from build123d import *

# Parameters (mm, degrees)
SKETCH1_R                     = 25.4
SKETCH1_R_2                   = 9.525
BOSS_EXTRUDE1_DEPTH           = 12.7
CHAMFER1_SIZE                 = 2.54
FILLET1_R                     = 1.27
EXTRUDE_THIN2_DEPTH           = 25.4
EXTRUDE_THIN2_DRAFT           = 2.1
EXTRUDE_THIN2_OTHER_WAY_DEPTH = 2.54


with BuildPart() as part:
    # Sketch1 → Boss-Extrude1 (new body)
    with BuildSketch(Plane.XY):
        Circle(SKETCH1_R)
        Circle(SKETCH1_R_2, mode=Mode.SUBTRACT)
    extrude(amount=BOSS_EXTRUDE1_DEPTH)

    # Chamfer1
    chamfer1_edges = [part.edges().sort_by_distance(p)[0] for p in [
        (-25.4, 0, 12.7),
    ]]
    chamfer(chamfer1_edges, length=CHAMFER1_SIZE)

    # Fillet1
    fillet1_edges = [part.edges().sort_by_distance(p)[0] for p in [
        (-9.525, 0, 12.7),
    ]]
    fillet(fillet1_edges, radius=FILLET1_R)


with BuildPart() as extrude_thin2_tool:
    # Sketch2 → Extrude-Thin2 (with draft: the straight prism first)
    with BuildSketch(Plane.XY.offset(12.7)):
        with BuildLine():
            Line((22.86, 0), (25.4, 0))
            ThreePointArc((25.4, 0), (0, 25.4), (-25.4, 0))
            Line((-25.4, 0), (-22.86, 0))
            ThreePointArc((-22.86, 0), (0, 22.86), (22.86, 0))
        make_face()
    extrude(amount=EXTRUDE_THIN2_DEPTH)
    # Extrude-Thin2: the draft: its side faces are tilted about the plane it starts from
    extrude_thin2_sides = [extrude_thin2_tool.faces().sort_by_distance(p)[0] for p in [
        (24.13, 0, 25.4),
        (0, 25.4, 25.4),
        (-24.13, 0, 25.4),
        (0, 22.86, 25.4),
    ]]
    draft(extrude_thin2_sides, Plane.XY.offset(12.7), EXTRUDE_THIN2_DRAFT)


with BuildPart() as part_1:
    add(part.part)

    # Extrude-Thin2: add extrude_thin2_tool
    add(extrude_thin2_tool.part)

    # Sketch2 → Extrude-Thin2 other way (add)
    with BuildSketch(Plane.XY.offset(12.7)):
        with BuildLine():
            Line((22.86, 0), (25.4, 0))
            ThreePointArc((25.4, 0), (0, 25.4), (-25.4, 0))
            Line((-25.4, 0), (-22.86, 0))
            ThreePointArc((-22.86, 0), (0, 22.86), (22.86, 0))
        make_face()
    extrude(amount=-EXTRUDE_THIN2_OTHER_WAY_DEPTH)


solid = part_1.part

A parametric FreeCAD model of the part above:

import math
import FreeCAD as App
import Part
import Sketcher
from FreeCAD import Vector
Q = App.Units.Quantity


def edges_at(feature, points):
    """Names of the edges that pass closest to the given points."""
    edges = feature.Shape.Edges
    near = lambda p: min(range(len(edges)), key=lambda i: edges[i].distToShape(Part.Vertex(*p))[0])
    return sorted({f"Edge{near(p) + 1}" for p in points})


def faces_at(feature, points):
    """Names of the faces that lie closest to the given points."""
    faces = feature.Shape.Faces
    near = lambda p: min(range(len(faces)), key=lambda i: faces[i].distToShape(Part.Vertex(*p))[0])
    return sorted({f"Face{near(p) + 1}" for p in points})

doc = App.newDocument("Part")
params = doc.addObject("Spreadsheet::Sheet", "Params")
for row, (alias, value) in enumerate([
    ("sketch1_diameter", "2 in"),
    ("sketch1_diameter2", "0.75 in"),
    ("pad1_length", "0.5 in"),
    ("chamfer_size", "0.1 in"),
    ("fillet_radius", "0.05 in"),
    ("sketch2_radius", "1 in"),
    ("sketch2_radius2", "0.9 in"),
    ("pad2_length", "1 in"),
    ("draft_angle", "2.1 deg"),
    ("sketch3_radius", "1 in"),
    ("sketch3_radius2", "0.9 in"),
    ("pad3_length", "0.1 in"),
], start=1):
    params.set(f"A{row}", alias)
    params.set(f"B{row}", "=" + value)
    params.setAlias(f"B{row}", alias)

body = doc.addObject("PartDesign::Body", "Body")

# Sketch on XY plane
sketch1 = doc.addObject("Sketcher::SketchObject", "Sketch")
body.addObject(sketch1)
sketch1.AttachmentSupport = (doc.XY_Plane, [""])
sketch1.MapMode = "FlatFace"
sketch1.addGeometry(Part.Circle(Vector(0, 0, 0), Vector(0, 0, 1), 25.4), False)
sketch1.addGeometry(Part.Circle(Vector(0, 0, 0), Vector(0, 0, 1), 9.525), False)
sketch1.addConstraint(Sketcher.Constraint("Coincident", 0, 3, -1, 1))
sketch1.addConstraint(Sketcher.Constraint("Coincident", 1, 3, -1, 1))
sketch1.addConstraint(Sketcher.Constraint("Diameter", 0, Q("2 in")))
sketch1.addConstraint(Sketcher.Constraint("Diameter", 1, Q("0.75 in")))
sketch1.setExpression("Constraints[2]", "Params.sketch1_diameter")
sketch1.setExpression("Constraints[3]", "Params.sketch1_diameter2")
pad1 = doc.addObject("PartDesign::Pad", "Pad")
body.addObject(pad1)
pad1.Profile = sketch1
pad1.setExpression("Length", "Params.pad1_length")
doc.recompute()

chamfer = doc.addObject("PartDesign::Chamfer", "Chamfer")
body.addObject(chamfer)
chamfer.Base = (pad1, edges_at(pad1, [(-25.4, 0, 12.7)]))
chamfer.setExpression("Size", "Params.chamfer_size")
doc.recompute()

fillet = doc.addObject("PartDesign::Fillet", "Fillet")
body.addObject(fillet)
fillet.Base = (chamfer, edges_at(chamfer, [(-9.525, 0, 12.7)]))
fillet.setExpression("Radius", "Params.fillet_radius")
body2 = doc.addObject("PartDesign::Body", "Body001")

# Sketch on XY plane
sketch2 = doc.addObject("Sketcher::SketchObject", "Sketch001")
body2.addObject(sketch2)
sketch2.AttachmentSupport = (doc.getObject("XY_Plane001"), [""])
sketch2.MapMode = "FlatFace"
sketch2.AttachmentOffset = App.Placement(Vector(0, 0, 0.5 * 25.4), App.Rotation())
sketch2.addGeometry(Part.LineSegment(Vector(22.86, 0, 0), Vector(25.4, 0, 0)), False)
sketch2.addGeometry(Part.ArcOfCircle(Part.Circle(Vector(0, 0, 0), Vector(0, 0, 1), 25.4), math.radians(0), math.radians(180)), False)
sketch2.addGeometry(Part.LineSegment(Vector(-25.4, 0, 0), Vector(-22.86, 0, 0)), False)
sketch2.addGeometry(Part.ArcOfCircle(Part.Circle(Vector(0, 0, 0), Vector(0, 0, 1), 22.86), math.radians(0), math.radians(180)), False)
sketch2.addConstraint(Sketcher.Constraint("Coincident", 0, 2, 1, 1))
sketch2.addConstraint(Sketcher.Constraint("Coincident", 1, 2, 2, 1))
sketch2.addConstraint(Sketcher.Constraint("Coincident", 2, 2, 3, 2))
sketch2.addConstraint(Sketcher.Constraint("Coincident", 3, 1, 0, 1))
sketch2.addConstraint(Sketcher.Constraint("Horizontal", 0))
sketch2.addConstraint(Sketcher.Constraint("Horizontal", 2))
sketch2.addConstraint(Sketcher.Constraint("Coincident", 1, 3, -1, 1))
sketch2.addConstraint(Sketcher.Constraint("Coincident", 3, 3, -1, 1))
sketch2.addConstraint(Sketcher.Constraint("PointOnObject", 0, 2, -1))
sketch2.addConstraint(Sketcher.Constraint("PointOnObject", 1, 2, -1))
sketch2.addConstraint(Sketcher.Constraint("Radius", 1, Q("1 in")))
sketch2.addConstraint(Sketcher.Constraint("Radius", 3, Q("0.9 in")))
sketch2.setExpression("Constraints[10]", "Params.sketch2_radius")
sketch2.setExpression("Constraints[11]", "Params.sketch2_radius2")
pad2 = doc.addObject("PartDesign::Pad", "Pad001")
body2.addObject(pad2)
pad2.Profile = sketch2
pad2.setExpression("Length", "Params.pad2_length")
doc.recompute()

datumplane = doc.addObject("PartDesign::Plane", "DatumPlane")
body2.addObject(datumplane)
datumplane.AttachmentSupport = (doc.getObject("XY_Plane001"), [""])
datumplane.MapMode = "FlatFace"
datumplane.AttachmentOffset = App.Placement(Vector(0, 0, 0.5 * 25.4), App.Rotation())
draft = doc.addObject("PartDesign::Draft", "Draft")
body2.addObject(draft)
draft.Base = (pad2, faces_at(pad2, [
    (24.13, 0, 25.4),
    (0, 25.4, 25.4),
    (-24.13, 0, 25.4),
    (0, 22.86, 25.4),
]))
draft.NeutralPlane = (datumplane, [""])
draft.setExpression("Angle", "Params.draft_angle")
draft.Reversed = False
body.AllowCompound = True
doc.recompute()

boolean = doc.addObject("PartDesign::Boolean", "Boolean")
body.addObject(boolean)
boolean.Type = "Fuse"
boolean.addObjects([body2])

# Sketch on XY plane
sketch3 = doc.addObject("Sketcher::SketchObject", "Sketch002")
body.addObject(sketch3)
sketch3.AttachmentSupport = (doc.XY_Plane, [""])
sketch3.MapMode = "FlatFace"
sketch3.AttachmentOffset = App.Placement(Vector(0, 0, 0.5 * 25.4), App.Rotation())
sketch3.addGeometry(Part.LineSegment(Vector(22.86, 0, 0), Vector(25.4, 0, 0)), False)
sketch3.addGeometry(Part.ArcOfCircle(Part.Circle(Vector(0, 0, 0), Vector(0, 0, 1), 25.4), math.radians(0), math.radians(180)), False)
sketch3.addGeometry(Part.LineSegment(Vector(-25.4, 0, 0), Vector(-22.86, 0, 0)), False)
sketch3.addGeometry(Part.ArcOfCircle(Part.Circle(Vector(0, 0, 0), Vector(0, 0, 1), 22.86), math.radians(0), math.radians(180)), False)
sketch3.addConstraint(Sketcher.Constraint("Coincident", 0, 2, 1, 1))
sketch3.addConstraint(Sketcher.Constraint("Coincident", 1, 2, 2, 1))
sketch3.addConstraint(Sketcher.Constraint("Coincident", 2, 2, 3, 2))
sketch3.addConstraint(Sketcher.Constraint("Coincident", 3, 1, 0, 1))
sketch3.addConstraint(Sketcher.Constraint("Horizontal", 0))
sketch3.addConstraint(Sketcher.Constraint("Horizontal", 2))
sketch3.addConstraint(Sketcher.Constraint("Coincident", 1, 3, -1, 1))
sketch3.addConstraint(Sketcher.Constraint("Coincident", 3, 3, -1, 1))
sketch3.addConstraint(Sketcher.Constraint("PointOnObject", 0, 2, -1))
sketch3.addConstraint(Sketcher.Constraint("PointOnObject", 1, 2, -1))
sketch3.addConstraint(Sketcher.Constraint("Radius", 1, Q("1 in")))
sketch3.addConstraint(Sketcher.Constraint("Radius", 3, Q("0.9 in")))
sketch3.setExpression("Constraints[10]", "Params.sketch3_radius")
sketch3.setExpression("Constraints[11]", "Params.sketch3_radius2")
pad3 = doc.addObject("PartDesign::Pad", "Pad002")
body.addObject(pad3)
pad3.Profile = sketch3
pad3.setExpression("Length", "Params.pad3_length")
pad3.Reversed = True

doc.recompute()
